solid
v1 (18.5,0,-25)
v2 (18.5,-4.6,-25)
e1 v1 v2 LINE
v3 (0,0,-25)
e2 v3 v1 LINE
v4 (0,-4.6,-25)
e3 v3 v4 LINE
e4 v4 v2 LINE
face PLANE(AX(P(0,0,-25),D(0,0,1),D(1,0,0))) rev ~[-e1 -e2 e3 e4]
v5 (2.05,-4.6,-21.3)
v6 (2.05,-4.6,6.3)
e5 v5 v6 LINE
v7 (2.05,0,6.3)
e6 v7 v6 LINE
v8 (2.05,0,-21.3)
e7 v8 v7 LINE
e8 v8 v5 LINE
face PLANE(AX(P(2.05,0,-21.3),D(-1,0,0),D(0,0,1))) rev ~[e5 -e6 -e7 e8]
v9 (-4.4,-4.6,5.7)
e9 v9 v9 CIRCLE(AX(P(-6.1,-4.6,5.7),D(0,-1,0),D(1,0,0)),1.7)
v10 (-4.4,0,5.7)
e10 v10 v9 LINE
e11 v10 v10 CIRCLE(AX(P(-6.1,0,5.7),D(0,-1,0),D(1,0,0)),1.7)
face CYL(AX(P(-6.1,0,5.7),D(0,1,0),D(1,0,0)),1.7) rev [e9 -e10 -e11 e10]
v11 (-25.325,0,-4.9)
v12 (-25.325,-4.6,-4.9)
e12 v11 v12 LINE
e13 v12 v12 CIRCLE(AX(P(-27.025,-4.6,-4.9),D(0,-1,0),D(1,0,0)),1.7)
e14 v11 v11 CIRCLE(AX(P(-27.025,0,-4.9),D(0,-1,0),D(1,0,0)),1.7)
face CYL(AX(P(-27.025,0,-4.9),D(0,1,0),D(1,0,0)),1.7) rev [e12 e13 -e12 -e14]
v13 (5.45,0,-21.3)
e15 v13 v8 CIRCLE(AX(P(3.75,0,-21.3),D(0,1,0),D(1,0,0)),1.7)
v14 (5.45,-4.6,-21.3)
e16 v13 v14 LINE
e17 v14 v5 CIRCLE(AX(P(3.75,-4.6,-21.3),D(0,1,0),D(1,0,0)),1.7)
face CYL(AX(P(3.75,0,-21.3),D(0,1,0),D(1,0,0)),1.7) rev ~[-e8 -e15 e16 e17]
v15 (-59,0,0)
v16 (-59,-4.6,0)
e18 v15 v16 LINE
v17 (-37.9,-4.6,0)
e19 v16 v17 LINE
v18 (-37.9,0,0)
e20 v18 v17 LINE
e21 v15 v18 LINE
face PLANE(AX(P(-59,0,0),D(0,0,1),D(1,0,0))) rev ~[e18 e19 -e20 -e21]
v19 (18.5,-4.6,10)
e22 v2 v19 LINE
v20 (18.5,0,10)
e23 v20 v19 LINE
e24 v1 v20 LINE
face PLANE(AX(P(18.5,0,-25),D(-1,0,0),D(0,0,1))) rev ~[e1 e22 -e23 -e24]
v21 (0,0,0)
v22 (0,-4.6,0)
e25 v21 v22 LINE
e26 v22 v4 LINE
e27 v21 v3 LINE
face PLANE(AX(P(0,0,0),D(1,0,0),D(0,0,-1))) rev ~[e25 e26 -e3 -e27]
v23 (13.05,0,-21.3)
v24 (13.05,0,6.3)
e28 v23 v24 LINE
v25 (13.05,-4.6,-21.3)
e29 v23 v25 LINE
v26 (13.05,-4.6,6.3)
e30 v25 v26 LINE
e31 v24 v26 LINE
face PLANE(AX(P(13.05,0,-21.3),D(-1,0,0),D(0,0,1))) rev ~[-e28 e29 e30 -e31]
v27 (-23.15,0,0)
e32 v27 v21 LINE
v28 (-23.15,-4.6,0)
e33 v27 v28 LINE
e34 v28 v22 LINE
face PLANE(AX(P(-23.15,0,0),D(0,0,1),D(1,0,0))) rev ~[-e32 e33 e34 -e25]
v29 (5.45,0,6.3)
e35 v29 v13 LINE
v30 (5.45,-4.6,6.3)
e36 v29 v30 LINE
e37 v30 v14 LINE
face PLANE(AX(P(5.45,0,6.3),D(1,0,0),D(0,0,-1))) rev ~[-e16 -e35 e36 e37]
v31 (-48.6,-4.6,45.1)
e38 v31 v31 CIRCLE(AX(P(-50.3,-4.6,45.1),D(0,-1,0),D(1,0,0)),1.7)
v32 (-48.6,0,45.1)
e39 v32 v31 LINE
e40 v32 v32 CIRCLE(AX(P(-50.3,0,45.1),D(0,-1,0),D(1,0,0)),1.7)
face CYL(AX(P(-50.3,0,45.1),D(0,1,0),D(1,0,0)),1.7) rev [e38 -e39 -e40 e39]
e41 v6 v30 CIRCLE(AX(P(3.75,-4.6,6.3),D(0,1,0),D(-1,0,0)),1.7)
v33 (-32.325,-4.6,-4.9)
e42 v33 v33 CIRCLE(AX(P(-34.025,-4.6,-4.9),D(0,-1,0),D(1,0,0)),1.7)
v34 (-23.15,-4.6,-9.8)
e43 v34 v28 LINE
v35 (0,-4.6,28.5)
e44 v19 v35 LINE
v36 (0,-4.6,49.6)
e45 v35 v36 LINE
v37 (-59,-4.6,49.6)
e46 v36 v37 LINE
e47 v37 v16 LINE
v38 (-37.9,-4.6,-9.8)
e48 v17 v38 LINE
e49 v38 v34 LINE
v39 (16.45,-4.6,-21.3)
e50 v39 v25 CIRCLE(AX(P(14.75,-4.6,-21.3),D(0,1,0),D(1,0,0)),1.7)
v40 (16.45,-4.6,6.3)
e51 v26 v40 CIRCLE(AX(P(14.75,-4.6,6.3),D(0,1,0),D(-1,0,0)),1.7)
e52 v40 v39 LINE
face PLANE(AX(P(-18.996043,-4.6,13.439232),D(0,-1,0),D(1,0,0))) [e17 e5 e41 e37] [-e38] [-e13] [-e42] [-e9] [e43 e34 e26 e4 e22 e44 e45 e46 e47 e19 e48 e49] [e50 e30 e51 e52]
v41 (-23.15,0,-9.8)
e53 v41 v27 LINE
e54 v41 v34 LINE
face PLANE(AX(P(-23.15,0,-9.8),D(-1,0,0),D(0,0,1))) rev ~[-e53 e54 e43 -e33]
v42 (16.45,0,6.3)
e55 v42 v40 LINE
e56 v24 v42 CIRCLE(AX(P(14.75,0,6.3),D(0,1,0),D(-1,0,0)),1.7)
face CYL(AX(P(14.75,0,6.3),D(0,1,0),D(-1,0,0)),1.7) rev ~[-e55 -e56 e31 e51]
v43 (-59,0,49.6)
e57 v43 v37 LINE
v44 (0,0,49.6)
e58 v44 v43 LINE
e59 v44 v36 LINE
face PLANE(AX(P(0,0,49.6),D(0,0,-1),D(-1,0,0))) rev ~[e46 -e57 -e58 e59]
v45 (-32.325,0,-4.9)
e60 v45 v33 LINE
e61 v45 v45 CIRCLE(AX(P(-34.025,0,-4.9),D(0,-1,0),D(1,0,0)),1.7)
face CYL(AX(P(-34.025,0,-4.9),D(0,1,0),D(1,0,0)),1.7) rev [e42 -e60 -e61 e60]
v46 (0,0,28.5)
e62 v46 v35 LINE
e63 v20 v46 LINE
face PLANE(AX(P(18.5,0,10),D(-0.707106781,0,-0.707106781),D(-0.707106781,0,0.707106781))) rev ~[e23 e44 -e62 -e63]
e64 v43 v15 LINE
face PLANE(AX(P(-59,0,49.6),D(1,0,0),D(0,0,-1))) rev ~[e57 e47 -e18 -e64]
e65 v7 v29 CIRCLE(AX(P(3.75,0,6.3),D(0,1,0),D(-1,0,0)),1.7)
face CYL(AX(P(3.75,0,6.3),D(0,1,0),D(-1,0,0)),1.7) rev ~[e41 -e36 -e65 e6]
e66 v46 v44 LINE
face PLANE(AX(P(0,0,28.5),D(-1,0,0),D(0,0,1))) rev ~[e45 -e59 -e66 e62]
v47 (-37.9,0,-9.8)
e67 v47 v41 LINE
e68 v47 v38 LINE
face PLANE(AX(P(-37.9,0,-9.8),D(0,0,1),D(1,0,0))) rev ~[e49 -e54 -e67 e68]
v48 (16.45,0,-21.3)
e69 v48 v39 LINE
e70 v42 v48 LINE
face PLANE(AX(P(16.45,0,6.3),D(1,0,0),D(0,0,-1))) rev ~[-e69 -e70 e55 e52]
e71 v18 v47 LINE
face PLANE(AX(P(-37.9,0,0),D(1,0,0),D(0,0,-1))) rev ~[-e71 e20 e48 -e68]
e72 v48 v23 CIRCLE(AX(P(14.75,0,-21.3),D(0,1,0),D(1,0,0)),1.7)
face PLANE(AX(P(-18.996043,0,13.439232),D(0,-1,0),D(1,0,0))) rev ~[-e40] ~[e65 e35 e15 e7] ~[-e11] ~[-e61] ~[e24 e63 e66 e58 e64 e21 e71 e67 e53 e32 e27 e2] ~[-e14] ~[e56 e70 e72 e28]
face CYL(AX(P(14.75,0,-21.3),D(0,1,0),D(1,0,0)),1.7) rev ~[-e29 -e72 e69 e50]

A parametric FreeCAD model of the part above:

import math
import FreeCAD as App
import Part
import Sketcher
from FreeCAD import Vector
Q = App.Units.Quantity


def add_polygon(sketch, points):
    """Adds a closed chain of lines whose ends are joined by coincident constraints."""
    first, n = sketch.GeometryCount, len(points)
    for a, b in zip(points, points[1:] + points[:1]):
        sketch.addGeometry(Part.LineSegment(App.Vector(*a, 0), App.Vector(*b, 0)), False)
    for i in range(n):
        sketch.addConstraint(Sketcher.Constraint("Coincident", first + i, 2, first + (i + 1) % n, 1))

doc = App.newDocument("Part")
body = doc.addObject("PartDesign::Body", "Body")

sketch1 = body.newObject("Sketcher::SketchObject", "Sketch")
sketch1.AttachmentSupport = (doc.getObject("XZ_Plane"), [""])
sketch1.MapMode = "FlatFace"
add_polygon(sketch1, [(0, 49.6), (-59, 49.6), (-59, 0), (-37.9, 0), (-37.9, -9.8), (-23.15, -9.8), (-23.15, 0), (0, 0), (0, -25), (18.5, -25), (18.5, 10), (0, 28.5)])
sketch1.addGeometry(Part.Circle(Vector(-34.025, -4.9, 0), Vector(0, 0, 1), 1.7), False)
sketch1.addGeometry(Part.Circle(Vector(-27.025, -4.9, 0), Vector(0, 0, 1), 1.7), False)
sketch1.addGeometry(Part.ArcOfCircle(Part.Circle(Vector(3.75, -21.3, 0), Vector(0, 0, 1), 1.7), math.radians(180), math.radians(360)), False)
sketch1.addGeometry(Part.LineSegment(Vector(2.05, -21.3, 0), Vector(2.05, 6.3, 0)), False)
sketch1.addGeometry(Part.ArcOfCircle(Part.Circle(Vector(3.75, 6.3, 0), Vector(0, 0, 1), 1.7), math.radians(0), math.radians(180)), False)
sketch1.addGeometry(Part.LineSegment(Vector(5.45, 6.3, 0), Vector(5.45, -21.3, 0)), False)
sketch1.addGeometry(Part.ArcOfCircle(Part.Circle(Vector(14.75, 6.3, 0), Vector(0, 0, 1), 1.7), math.radians(0), math.radians(180)), False)
sketch1.addGeometry(Part.LineSegment(Vector(16.45, 6.3, 0), Vector(16.45, -21.3, 0)), False)
sketch1.addGeometry(Part.ArcOfCircle(Part.Circle(Vector(14.75, -21.3, 0), Vector(0, 0, 1), 1.7), math.radians(180), math.radians(360)), False)
sketch1.addGeometry(Part.LineSegment(Vector(13.05, -21.3, 0), Vector(13.05, 6.3, 0)), False)
sketch1.addGeometry(Part.Circle(Vector(-6.1, 5.7, 0), Vector(0, 0, 1), 1.7), False)
sketch1.addGeometry(Part.Circle(Vector(-50.3, 45.1, 0), Vector(0, 0, 1), 1.7), False)
sketch1.addConstraint(Sketcher.Constraint("Tangent", 14, 1, 15, 1))
sketch1.addConstraint(Sketcher.Constraint("Tangent", 15, 2, 16, 2))
sketch1.addConstraint(Sketcher.Constraint("Tangent", 16, 1, 17, 1))
sketch1.addConstraint(Sketcher.Constraint("Tangent", 17, 2, 14, 2))
sketch1.addConstraint(Sketcher.Constraint("Tangent", 18, 1, 19, 1))
sketch1.addConstraint(Sketcher.Constraint("Tangent", 19, 2, 20, 2))
sketch1.addConstraint(Sketcher.Constraint("Tangent", 20, 1, 21, 1))
sketch1.addConstraint(Sketcher.Constraint("Tangent", 21, 2, 18, 2))
sketch1.addConstraint(Sketcher.Constraint("Horizontal", 0))
sketch1.addConstraint(Sketcher.Constraint("Vertical", 1))
sketch1.addConstraint(Sketcher.Constraint("Horizontal", 2))
sketch1.addConstraint(Sketcher.Constraint("Vertical", 3))
sketch1.addConstraint(Sketcher.Constraint("Horizontal", 4))
sketch1.addConstraint(Sketcher.Constraint("Vertical", 5))
sketch1.addConstraint(Sketcher.Constraint("Horizontal", 6))
sketch1.addConstraint(Sketcher.Constraint("Vertical", 7))
sketch1.addConstraint(Sketcher.Constraint("Horizontal", 8))
sketch1.addConstraint(Sketcher.Constraint("Vertical", 9))
sketch1.addConstraint(Sketcher.Constraint("Vertical", 11))
sketch1.addConstraint(Sketcher.Constraint("Vertical", 15))
sketch1.addConstraint(Sketcher.Constraint("Vertical", 17))
sketch1.addConstraint(Sketcher.Constraint("Vertical", 19))
sketch1.addConstraint(Sketcher.Constraint("Vertical", 21))
sketch1.addConstraint(Sketcher.Constraint("Coincident", 6, 2, -1, 1))
sketch1.addConstraint(Sketcher.Constraint("Equal", 12, 13))
sketch1.addConstraint(Sketcher.Constraint("Equal", 13, 14))
sketch1.addConstraint(Sketcher.Constraint("Equal", 16, 18))
sketch1.addConstraint(Sketcher.Constraint("Equal", 20, 22))
sketch1.addConstraint(Sketcher.Constraint("Equal", 22, 23))
sketch1.addConstraint(Sketcher.Constraint("PointOnObject", 1, 2, -1))
sketch1.addConstraint(Sketcher.Constraint("PointOnObject", 10, 2, -2))
sketch1.addConstraint(Sketcher.Constraint("Horizontal", 12, 3, 13, 3))
sketch1.addConstraint(Sketcher.Constraint("Horizontal", 16, 3, 18, 3))
sketch1.addConstraint(Sketcher.Constraint("Horizontal", 14, 3, 20, 3))
sketch1.addConstraint(Sketcher.Constraint("Equal", 2, 11))
sketch1.addConstraint(Sketcher.Constraint("Diameter", 12, 3.4))
sketch1.addConstraint(Sketcher.Constraint("DistanceX", 0, 2, 0, 1, 59.0))
sketch1.addConstraint(Sketcher.Constraint("DistanceY", 7, 2, 7, 1, 25.0))
sketch1.addConstraint(Sketcher.Constraint("DistanceY", 9, 1, 9, 2, 35.0))
sketch1.addConstraint(Sketcher.Constraint("Angle", 10, Q("135 deg")))
sketch1.addConstraint(Sketcher.Constraint("DistanceX", 2, 1, 2, 2, 21.1))
sketch1.addConstraint(Sketcher.Constraint("DistanceX", 8, 1, 8, 2, 18.5))
sketch1.addConstraint(Sketcher.Constraint("DistanceY", 3, 2, 3, 1, 9.8))
sketch1.addConstraint(Sketcher.Constraint("DistanceY", 15, 1, 15, 2, 27.6))
sketch1.addConstraint(Sketcher.Constraint("DistanceX", 12, 3, 13, 3, 7.0))
sketch1.addConstraint(Sketcher.Constraint("DistanceX", 16, 3, 18, 3, 11.0))
sketch1.addConstraint(Sketcher.Constraint("DistanceY", 14, 3, 22, 3, 27.0))
sketch1.addConstraint(Sketcher.Constraint("DistanceY", 12, 3, 23, 3, 50.0))
sketch1.addConstraint(Sketcher.Constraint("DistanceX", 4, 1, 4, 2, 14.75))
sketch1.addConstraint(Sketcher.Constraint("DistanceY", 12, 3, -1, 1, 4.9))
sketch1.addConstraint(Sketcher.Constraint("DistanceY", 14, 3, -1, 1, 21.3))
sketch1.addConstraint(Sketcher.Constraint("DistanceX", 22, 3, -1, 1, 6.1))
sketch1.addConstraint(Sketcher.Constraint("DistanceX", 23, 3, -1, 1, 50.3))
sketch1.addConstraint(Sketcher.Constraint("DistanceX", -1, 1, 14, 3, 3.75))
sketch1.addConstraint(Sketcher.Constraint("DistanceX", 12, 3, -1, 1, 34.025))
pad1 = body.newObject("PartDesign::Pad", "Pad")
pad1.Profile = sketch1
pad1.Length = 4.6

doc.recompute()
